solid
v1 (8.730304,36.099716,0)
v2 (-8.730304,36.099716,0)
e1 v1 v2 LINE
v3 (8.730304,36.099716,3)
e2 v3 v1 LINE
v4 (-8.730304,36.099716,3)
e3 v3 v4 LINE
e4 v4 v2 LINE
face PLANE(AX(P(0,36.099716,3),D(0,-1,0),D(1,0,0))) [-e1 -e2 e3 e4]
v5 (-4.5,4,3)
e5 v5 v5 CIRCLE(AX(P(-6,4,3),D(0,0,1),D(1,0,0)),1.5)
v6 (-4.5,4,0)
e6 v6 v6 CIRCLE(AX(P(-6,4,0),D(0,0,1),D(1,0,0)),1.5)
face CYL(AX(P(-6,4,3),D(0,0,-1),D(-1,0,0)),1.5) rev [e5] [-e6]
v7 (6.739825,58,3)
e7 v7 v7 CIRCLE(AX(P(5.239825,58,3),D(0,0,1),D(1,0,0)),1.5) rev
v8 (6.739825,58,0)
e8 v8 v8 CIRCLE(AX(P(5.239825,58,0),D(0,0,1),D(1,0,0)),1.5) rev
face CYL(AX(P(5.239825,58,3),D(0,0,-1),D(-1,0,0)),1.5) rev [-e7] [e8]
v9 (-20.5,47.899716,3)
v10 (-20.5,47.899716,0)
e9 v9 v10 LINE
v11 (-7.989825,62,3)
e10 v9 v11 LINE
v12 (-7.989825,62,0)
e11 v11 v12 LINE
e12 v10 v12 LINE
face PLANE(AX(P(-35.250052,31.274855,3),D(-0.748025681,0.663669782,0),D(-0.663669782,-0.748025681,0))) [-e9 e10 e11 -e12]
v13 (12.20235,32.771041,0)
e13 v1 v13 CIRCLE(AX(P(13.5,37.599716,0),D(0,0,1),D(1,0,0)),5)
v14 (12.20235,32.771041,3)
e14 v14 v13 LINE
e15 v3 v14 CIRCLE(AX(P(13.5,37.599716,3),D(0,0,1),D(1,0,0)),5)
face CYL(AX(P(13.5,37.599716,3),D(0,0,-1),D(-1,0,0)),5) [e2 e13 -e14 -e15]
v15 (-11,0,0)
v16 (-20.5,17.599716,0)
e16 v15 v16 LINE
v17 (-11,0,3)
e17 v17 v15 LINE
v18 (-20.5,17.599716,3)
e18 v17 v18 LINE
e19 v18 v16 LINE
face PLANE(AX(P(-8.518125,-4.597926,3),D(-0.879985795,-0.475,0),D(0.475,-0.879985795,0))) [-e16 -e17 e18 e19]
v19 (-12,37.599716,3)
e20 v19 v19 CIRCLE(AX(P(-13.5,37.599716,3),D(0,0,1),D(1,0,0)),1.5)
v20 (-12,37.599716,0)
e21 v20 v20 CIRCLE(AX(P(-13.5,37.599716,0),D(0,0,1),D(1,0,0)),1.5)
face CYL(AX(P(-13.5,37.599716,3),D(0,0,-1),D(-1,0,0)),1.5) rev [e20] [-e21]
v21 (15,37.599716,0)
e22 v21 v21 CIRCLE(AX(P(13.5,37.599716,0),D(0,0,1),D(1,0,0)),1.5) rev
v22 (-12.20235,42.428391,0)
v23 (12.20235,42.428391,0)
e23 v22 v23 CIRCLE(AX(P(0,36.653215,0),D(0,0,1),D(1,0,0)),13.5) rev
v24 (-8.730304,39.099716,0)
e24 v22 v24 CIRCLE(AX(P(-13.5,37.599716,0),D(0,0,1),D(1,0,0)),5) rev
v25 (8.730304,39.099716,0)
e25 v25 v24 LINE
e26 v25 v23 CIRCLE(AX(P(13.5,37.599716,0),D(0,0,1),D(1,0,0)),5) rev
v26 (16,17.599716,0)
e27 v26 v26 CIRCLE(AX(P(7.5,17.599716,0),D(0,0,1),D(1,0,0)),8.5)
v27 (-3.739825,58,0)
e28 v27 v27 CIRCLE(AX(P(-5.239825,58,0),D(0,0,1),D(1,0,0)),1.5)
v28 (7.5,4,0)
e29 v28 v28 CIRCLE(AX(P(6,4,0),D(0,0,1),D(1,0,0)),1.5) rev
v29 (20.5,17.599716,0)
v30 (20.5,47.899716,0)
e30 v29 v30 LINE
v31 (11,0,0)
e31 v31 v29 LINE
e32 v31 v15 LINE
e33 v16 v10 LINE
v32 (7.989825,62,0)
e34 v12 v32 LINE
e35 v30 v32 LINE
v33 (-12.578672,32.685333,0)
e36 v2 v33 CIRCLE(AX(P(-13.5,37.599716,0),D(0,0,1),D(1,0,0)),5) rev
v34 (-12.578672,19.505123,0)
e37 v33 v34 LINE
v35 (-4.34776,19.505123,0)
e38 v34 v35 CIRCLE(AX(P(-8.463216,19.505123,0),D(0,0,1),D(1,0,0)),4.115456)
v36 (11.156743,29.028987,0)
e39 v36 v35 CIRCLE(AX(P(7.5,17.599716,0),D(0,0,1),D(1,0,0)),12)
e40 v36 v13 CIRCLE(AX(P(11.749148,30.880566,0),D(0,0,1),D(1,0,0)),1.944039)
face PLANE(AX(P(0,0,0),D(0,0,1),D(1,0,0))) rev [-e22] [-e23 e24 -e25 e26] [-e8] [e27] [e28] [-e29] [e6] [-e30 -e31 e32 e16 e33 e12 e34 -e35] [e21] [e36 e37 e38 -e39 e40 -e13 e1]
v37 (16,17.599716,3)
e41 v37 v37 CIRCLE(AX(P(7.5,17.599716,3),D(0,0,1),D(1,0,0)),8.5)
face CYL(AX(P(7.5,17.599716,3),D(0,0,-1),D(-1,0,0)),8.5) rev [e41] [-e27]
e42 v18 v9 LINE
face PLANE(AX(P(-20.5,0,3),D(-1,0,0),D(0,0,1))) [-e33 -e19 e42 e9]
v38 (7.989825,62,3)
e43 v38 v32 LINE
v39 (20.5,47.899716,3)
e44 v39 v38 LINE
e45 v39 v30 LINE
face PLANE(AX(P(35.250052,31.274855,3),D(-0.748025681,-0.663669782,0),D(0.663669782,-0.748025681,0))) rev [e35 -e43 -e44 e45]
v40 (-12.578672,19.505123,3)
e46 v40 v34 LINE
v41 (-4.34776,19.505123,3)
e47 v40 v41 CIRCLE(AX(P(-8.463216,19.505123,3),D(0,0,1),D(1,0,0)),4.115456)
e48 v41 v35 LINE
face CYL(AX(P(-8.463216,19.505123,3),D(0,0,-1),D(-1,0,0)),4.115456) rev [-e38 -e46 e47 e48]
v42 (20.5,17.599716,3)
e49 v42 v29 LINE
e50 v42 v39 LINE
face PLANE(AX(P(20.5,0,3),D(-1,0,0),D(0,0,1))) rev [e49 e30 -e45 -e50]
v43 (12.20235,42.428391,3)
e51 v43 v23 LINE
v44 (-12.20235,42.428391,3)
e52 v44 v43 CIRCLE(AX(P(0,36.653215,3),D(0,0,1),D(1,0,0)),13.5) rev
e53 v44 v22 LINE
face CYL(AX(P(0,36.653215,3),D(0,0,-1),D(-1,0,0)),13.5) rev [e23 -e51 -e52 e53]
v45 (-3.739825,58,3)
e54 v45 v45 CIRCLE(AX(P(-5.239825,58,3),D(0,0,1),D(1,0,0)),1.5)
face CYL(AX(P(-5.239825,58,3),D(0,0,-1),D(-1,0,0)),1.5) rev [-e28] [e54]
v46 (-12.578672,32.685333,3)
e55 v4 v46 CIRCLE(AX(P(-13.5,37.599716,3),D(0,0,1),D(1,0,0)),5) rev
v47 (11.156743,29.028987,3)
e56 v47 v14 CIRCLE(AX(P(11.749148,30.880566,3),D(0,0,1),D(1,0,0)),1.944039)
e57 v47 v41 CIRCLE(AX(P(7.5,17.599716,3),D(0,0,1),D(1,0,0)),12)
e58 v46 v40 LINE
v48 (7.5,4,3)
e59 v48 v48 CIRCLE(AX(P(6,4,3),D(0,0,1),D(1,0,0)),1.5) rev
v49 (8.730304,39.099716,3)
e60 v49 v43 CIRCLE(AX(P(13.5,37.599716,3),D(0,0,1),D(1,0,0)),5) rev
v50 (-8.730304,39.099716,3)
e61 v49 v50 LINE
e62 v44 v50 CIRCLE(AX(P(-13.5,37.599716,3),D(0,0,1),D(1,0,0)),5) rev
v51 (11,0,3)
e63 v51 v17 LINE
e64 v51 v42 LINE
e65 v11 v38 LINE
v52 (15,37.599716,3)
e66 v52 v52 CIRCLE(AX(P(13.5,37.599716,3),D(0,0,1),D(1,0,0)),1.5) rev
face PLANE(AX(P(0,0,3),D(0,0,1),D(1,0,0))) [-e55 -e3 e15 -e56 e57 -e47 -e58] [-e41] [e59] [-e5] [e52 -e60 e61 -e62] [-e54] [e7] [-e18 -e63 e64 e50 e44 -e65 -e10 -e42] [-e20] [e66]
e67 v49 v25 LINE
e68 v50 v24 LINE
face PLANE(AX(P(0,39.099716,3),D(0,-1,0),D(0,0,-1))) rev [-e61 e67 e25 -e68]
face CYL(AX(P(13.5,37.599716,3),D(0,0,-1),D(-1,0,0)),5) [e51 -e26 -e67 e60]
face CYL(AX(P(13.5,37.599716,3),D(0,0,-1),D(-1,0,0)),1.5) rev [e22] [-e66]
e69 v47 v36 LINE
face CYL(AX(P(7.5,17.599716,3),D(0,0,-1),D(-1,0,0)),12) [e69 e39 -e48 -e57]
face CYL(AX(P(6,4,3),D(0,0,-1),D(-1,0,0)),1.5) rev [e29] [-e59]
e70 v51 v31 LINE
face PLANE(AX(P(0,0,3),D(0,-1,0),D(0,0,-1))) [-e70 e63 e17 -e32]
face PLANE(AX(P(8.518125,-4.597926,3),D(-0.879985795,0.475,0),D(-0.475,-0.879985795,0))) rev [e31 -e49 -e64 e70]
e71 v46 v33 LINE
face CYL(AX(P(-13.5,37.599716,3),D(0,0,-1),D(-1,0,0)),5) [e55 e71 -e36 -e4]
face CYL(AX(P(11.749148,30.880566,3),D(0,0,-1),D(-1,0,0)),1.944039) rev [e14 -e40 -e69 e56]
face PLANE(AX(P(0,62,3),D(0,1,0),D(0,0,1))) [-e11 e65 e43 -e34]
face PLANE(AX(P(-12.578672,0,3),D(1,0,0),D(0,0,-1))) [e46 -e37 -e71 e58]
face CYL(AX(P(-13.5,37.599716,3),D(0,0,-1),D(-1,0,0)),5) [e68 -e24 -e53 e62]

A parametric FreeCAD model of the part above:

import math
import FreeCAD as App
import Part
import Sketcher

V = App.Vector


def add_polygon(sketch, points):
    """Adds a closed chain of lines whose ends are joined by coincident constraints."""
    first, n = sketch.GeometryCount, len(points)
    for a, b in zip(points, points[1:] + points[:1]):
        sketch.addGeometry(Part.LineSegment(App.Vector(*a, 0), App.Vector(*b, 0)), False)
    for i in range(n):
        sketch.addConstraint(Sketcher.Constraint("Coincident", first + i, 2, first + (i + 1) % n, 1))

doc = App.newDocument("Part")
body = doc.addObject("PartDesign::Body", "Body")

# Sketch on XY plane
sketch1 = body.newObject("Sketcher::SketchObject", "Sketch")
sketch1.AttachmentSupport = (doc.getObject("XY_Plane"), [""])
sketch1.MapMode = "FlatFace"
add_polygon(sketch1, [(20.5, 17.6), (20.5, 47.9), (8, 62), (-8, 62), (-20.5, 47.9), (-20.5, 17.6), (-11, 0), (11, 0)])  # lines 0-7
sketch1.addGeometry(Part.Circle(V(-6, 4, 0), V(0, 0, 1), 1.5), False)  # 8
sketch1.addGeometry(Part.Circle(V(6, 4, 0), V(0, 0, 1), 1.5), False)  # 9
sketch1.addGeometry(Part.Circle(V(7.5, 17.6, 0), V(0, 0, 1), 8.5), False)  # 10
sketch1.addGeometry(Part.Circle(V(-13.5, 37.6, 0), V(0, 0, 1), 1.5), False)  # 11
sketch1.addGeometry(Part.Circle(V(-5.2, 58, 0), V(0, 0, 1), 1.5), False)  # 12
sketch1.addGeometry(Part.ArcOfCircle(Part.Circle(V(11.7, 30.9, 0), V(0, 0, 1), 1.9), math.radians(-108), math.radians(77)), False)  # 13
sketch1.addGeometry(Part.ArcOfCircle(Part.Circle(V(7.5, 17.6, 0), V(0, 0, 1), 12), math.radians(72), math.radians(171)), False)  # 14
sketch1.addGeometry(Part.ArcOfCircle(Part.Circle(V(-8.5, 19.5, 0), V(0, 0, 1), 4.1), math.radians(180), math.radians(360)), False)  # 15
sketch1.addGeometry(Part.LineSegment(V(-12.6, 19.5, 0), V(-12.6, 32.7, 0)), False)  # 16
sketch1.addGeometry(Part.ArcOfCircle(Part.Circle(V(-13.5, 37.6, 0), V(0, 0, 1), 5), math.radians(-79), math.radians(-17)), False)  # 17
sketch1.addGeometry(Part.LineSegment(V(-8.7, 36.1, 0), V(8.7, 36.1, 0)), False)  # 18
sketch1.addGeometry(Part.ArcOfCircle(Part.Circle(V(13.5, 37.6, 0), V(0, 0, 1), 5), math.radians(-163), math.radians(-105)), False)  # 19
sketch1.addGeometry(Part.ArcOfCircle(Part.Circle(V(13.5, 37.6, 0), V(0, 0, 1), 5), math.radians(105), math.radians(163)), False)  # 20
sketch1.addGeometry(Part.LineSegment(V(8.7, 39.1, 0), V(-8.7, 39.1, 0)), False)  # 21
sketch1.addGeometry(Part.ArcOfCircle(Part.Circle(V(-13.5, 37.6, 0), V(0, 0, 1), 5), math.radians(17), math.radians(75)), False)  # 22
sketch1.addGeometry(Part.ArcOfCircle(Part.Circle(V(0, 36.7, 0), V(0, 0, 1), 13.5), math.radians(25), math.radians(155)), False)  # 23
sketch1.addGeometry(Part.Circle(V(13.5, 37.6, 0), V(0, 0, 1), 1.5), False)  # 24
sketch1.addGeometry(Part.Circle(V(5.2, 58, 0), V(0, 0, 1), 1.5), False)  # 25
sketch1.addConstraint(Sketcher.Constraint("Tangent", 13, 1, 14, 1))
sketch1.addConstraint(Sketcher.Constraint("Coincident", 14, 2, 15, 2))
sketch1.addConstraint(Sketcher.Constraint("Tangent", 15, 1, 16, 1))
sketch1.addConstraint(Sketcher.Constraint("Coincident", 16, 2, 17, 1))
sketch1.addConstraint(Sketcher.Constraint("Coincident", 17, 2, 18, 1))
sketch1.addConstraint(Sketcher.Constraint("Coincident", 18, 2, 19, 1))
sketch1.addConstraint(Sketcher.Constraint("Coincident", 19, 2, 13, 2))
sketch1.addConstraint(Sketcher.Constraint("Coincident", 20, 2, 21, 1))
sketch1.addConstraint(Sketcher.Constraint("Coincident", 21, 2, 22, 1))
sketch1.addConstraint(Sketcher.Constraint("Coincident", 22, 2, 23, 2))
sketch1.addConstraint(Sketcher.Constraint("Coincident", 23, 1, 20, 1))
sketch1.addConstraint(Sketcher.Constraint("Vertical", 0))
sketch1.addConstraint(Sketcher.Constraint("Horizontal", 2))
sketch1.addConstraint(Sketcher.Constraint("Vertical", 4))
sketch1.addConstraint(Sketcher.Constraint("Horizontal", 6))
sketch1.addConstraint(Sketcher.Constraint("Vertical", 16))
sketch1.addConstraint(Sketcher.Constraint("Horizontal", 18))
sketch1.addConstraint(Sketcher.Constraint("Horizontal", 21))
sketch1.addConstraint(Sketcher.Constraint("Coincident", 14, 3, 10, 3))
sketch1.addConstraint(Sketcher.Constraint("Coincident", 17, 3, 11, 3))
sketch1.addConstraint(Sketcher.Constraint("Coincident", 20, 3, 19, 3))
sketch1.addConstraint(Sketcher.Constraint("Coincident", 22, 3, 11, 3))
sketch1.addConstraint(Sketcher.Constraint("Coincident", 24, 3, 19, 3))
sketch1.addConstraint(Sketcher.Constraint("Equal", 8, 9))
sketch1.addConstraint(Sketcher.Constraint("Equal", 9, 11))
sketch1.addConstraint(Sketcher.Constraint("Equal", 11, 12))
sketch1.addConstraint(Sketcher.Constraint("Equal", 17, 19))
sketch1.addConstraint(Sketcher.Constraint("Equal", 19, 20))
sketch1.addConstraint(Sketcher.Constraint("Equal", 20, 22))
sketch1.addConstraint(Sketcher.Constraint("Equal", 12, 24))
sketch1.addConstraint(Sketcher.Constraint("Equal", 24, 25))
sketch1.addConstraint(Sketcher.Constraint("Symmetric", 5, 2, 6, 2, -1, 1))
sketch1.addConstraint(Sketcher.Constraint("Symmetric", 8, 3, 9, 3, -2))
sketch1.addConstraint(Sketcher.Constraint("Symmetric", 11, 3, 19, 3, -2))
sketch1.addConstraint(Sketcher.Constraint("Symmetric", 12, 3, 25, 3, -2))
sketch1.addConstraint(Sketcher.Constraint("Symmetric", 0, 2, 3, 2, -2))
sketch1.addConstraint(Sketcher.Constraint("PointOnObject", 23, 3, -2))
sketch1.addConstraint(Sketcher.Constraint("Horizontal", 14, 3, 4, 2))
sketch1.addConstraint(Sketcher.Constraint("Horizontal", 4, 2, 7, 2))
sketch1.addConstraint(Sketcher.Constraint("Horizontal", 15, 3, 14, 2))
sketch1.addConstraint(Sketcher.Constraint("Vertical", 18, 2, 20, 2))
sketch1.addConstraint(Sketcher.Constraint("Vertical", 19, 2, 23, 1))
sketch1.addConstraint(Sketcher.Constraint("Equal", 1, 3))
sketch1.addConstraint(Sketcher.Constraint("Diameter", 8, 3.0))
sketch1.addConstraint(Sketcher.Constraint("Diameter", 10, 17.0))
sketch1.addConstraint(Sketcher.Constraint("Radius", 14, 12.0))
sketch1.addConstraint(Sketcher.Constraint("Radius", 17, 5.0))
sketch1.addConstraint(Sketcher.Constraint("Radius", 23, 13.5))
sketch1.addConstraint(Sketcher.Constraint("DistanceX", 6, 1, 6, 2, 22.0))
sketch1.addConstraint(Sketcher.Constraint("Distance", 5, 20.0))
sketch1.addConstraint(Sketcher.Constraint("DistanceY", 0, 1, 0, 2, 30.3))
sketch1.addConstraint(Sketcher.Constraint("DistanceX", 8, 3, -1, 1, 6.0))
sketch1.addConstraint(Sketcher.Constraint("DistanceY", -1, 1, 8, 3, 4.0))
sketch1.addConstraint(Sketcher.Constraint("DistanceY", -1, 1, 12, 3, 58.0))
sketch1.addConstraint(Sketcher.Constraint("DistanceY", -1, 1, 1, 2, 62.0))
sketch1.addConstraint(Sketcher.Constraint("DistanceX", 11, 3, 10, 3, 21.0))
sketch1.addConstraint(Sketcher.Constraint("DistanceY", 10, 3, 11, 3, 20.0))
sketch1.addConstraint(Sketcher.Constraint("DistanceX", 14, 3, 19, 3, 6.0))
sketch1.addConstraint(Sketcher.Constraint("DistanceX", 24, 3, 0, 2, 7.0))
sketch1.addConstraint(Sketcher.Constraint("DistanceY", 18, 2, 20, 2, 3.0))
sketch1.addConstraint(Sketcher.Constraint("Distance", 1, 18.85))
sketch1.addConstraint(Sketcher.Constraint("Radius", 13, 1.944039))
sketch1.addConstraint(Sketcher.Constraint("DistanceX", 25, 3, 1, 2, 2.75))
sketch1.addConstraint(Sketcher.Constraint("Radius", 15, 4.115456))
sketch1.addConstraint(Sketcher.Constraint("DistanceY", 16, 1, 16, 2, 13.18021))
sketch1.addConstraint(Sketcher.Constraint("DistanceY", 23, 3, 19, 3, 0.946501))
pad1 = body.newObject("PartDesign::Pad", "Pad")
pad1.Profile = sketch1
pad1.Length = 3

doc.recompute()
